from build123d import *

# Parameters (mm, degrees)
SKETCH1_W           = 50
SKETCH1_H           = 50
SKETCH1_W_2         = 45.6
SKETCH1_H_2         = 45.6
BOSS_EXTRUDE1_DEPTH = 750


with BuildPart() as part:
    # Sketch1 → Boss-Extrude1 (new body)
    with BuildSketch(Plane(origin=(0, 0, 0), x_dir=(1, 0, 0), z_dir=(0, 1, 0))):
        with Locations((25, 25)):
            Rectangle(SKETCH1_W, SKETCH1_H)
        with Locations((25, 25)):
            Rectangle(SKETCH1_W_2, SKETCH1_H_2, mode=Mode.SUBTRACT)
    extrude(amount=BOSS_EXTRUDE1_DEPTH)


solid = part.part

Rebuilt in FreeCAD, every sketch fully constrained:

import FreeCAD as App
import Part
import Sketcher


def add_polygon(sketch, points):
    """Adds a closed chain of lines whose ends are joined by coincident constraints."""
    first, n = sketch.GeometryCount, len(points)
    for a, b in zip(points, points[1:] + points[:1]):
        sketch.addGeometry(Part.LineSegment(App.Vector(*a, 0), App.Vector(*b, 0)), False)
    for i in range(n):
        sketch.addConstraint(Sketcher.Constraint("Coincident", first + i, 2, first + (i + 1) % n, 1))

doc = App.newDocument("Part")
body = doc.addObject("PartDesign::Body", "Body")

# Sketch on XZ plane
sketch1 = doc.addObject("Sketcher::SketchObject", "Sketch")
body.addObject(sketch1)
sketch1.AttachmentSupport = (doc.XZ_Plane, [""])
sketch1.MapMode = "FlatFace"
add_polygon(sketch1, [(0, -50), (0, 0), (50, 0), (50, -50)])  # lines 0-3
add_polygon(sketch1, [(47.8, -2.2), (2.2, -2.2), (2.2, -47.8), (47.8, -47.8)])  # lines 4-7
sketch1.addConstraint(Sketcher.Constraint("Vertical", 0))
sketch1.addConstraint(Sketcher.Constraint("Horizontal", 1))
sketch1.addConstraint(Sketcher.Constraint("Vertical", 2))
sketch1.addConstraint(Sketcher.Constraint("Horizontal", 3))
sketch1.addConstraint(Sketcher.Constraint("Horizontal", 4))
sketch1.addConstraint(Sketcher.Constraint("Vertical", 5))
sketch1.addConstraint(Sketcher.Constraint("Horizontal", 6))
sketch1.addConstraint(Sketcher.Constraint("Vertical", 7))
sketch1.addConstraint(Sketcher.Constraint("Coincident", 0, 2, -1, 1))
sketch1.addConstraint(Sketcher.Constraint("Equal", 3, 0))
sketch1.addConstraint(Sketcher.Constraint("Equal", 6, 5))
sketch1.addConstraint(Sketcher.Constraint("DistanceX", 1, 1, 1, 2, 50.0))
sketch1.addConstraint(Sketcher.Constraint("DistanceX", 4, 2, 4, 1, 45.6))
sketch1.addConstraint(Sketcher.Constraint("DistanceX", -1, 1, 4, 2, 2.2))
sketch1.addConstraint(Sketcher.Constraint("DistanceY", 4, 2, -1, 1, 2.2))
pad1 = doc.addObject("PartDesign::Pad", "Pad")
body.addObject(pad1)
pad1.Profile = sketch1
pad1.Length = 750
pad1.Reversed = True

doc.recompute()
